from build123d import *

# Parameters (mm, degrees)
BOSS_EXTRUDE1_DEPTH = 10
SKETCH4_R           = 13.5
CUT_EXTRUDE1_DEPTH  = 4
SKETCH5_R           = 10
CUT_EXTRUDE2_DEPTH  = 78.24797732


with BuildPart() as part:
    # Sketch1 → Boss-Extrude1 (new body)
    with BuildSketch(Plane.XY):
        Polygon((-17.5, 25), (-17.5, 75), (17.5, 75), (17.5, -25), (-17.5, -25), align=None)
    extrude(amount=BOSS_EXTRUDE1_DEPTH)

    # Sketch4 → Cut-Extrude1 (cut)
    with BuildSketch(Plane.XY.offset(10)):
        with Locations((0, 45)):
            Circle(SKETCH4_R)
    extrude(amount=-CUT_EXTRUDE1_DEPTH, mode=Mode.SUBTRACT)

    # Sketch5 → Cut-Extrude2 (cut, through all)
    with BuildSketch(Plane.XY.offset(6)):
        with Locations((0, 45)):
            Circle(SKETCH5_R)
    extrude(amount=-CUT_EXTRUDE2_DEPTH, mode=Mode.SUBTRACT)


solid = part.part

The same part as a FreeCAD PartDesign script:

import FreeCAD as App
import Part
import Sketcher

doc = App.newDocument("Part")
body = doc.addObject("PartDesign::Body", "Body")

# Sketch on XY plane
sketch1 = body.newObject("Sketcher::SketchObject", "Sketch")
sketch1.AttachmentSupport = (doc.getObject("XY_Plane"), [""])
sketch1.MapMode = "FlatFace"
sketch1.addGeometry([
    Part.LineSegment(App.Vector(-18, 75, 0), App.Vector(-18, -25, 0)),
    Part.LineSegment(App.Vector(-18, -25, 0), App.Vector(18, -25, 0)),
    Part.LineSegment(App.Vector(18, -25, 0), App.Vector(18, 75, 0)),
    Part.LineSegment(App.Vector(18, 75, 0), App.Vector(-18, 75, 0)),
], False)
sketch1.addConstraint([
    Sketcher.Constraint("Coincident", 0, 2, 1, 1),
    Sketcher.Constraint("Coincident", 1, 2, 2, 1),
    Sketcher.Constraint("Coincident", 2, 2, 3, 1),
    Sketcher.Constraint("Coincident", 3, 2, 0, 1),
    Sketcher.Constraint("Vertical", 0),
    Sketcher.Constraint("Horizontal", 1),
    Sketcher.Constraint("Vertical", 2),
    Sketcher.Constraint("Horizontal", 3),
    Sketcher.Constraint("DistanceX", 1, 1, 1, 2, 35.0),
    Sketcher.Constraint("DistanceY", 0, 2, 0, 1, 100.0),
    Sketcher.Constraint("DistanceY", 0, 2, -1, 1, 25.0),
    Sketcher.Constraint("DistanceX", 0, 2, -1, 1, 17.5),
])
pad1 = body.newObject("PartDesign::Pad", "Pad")
pad1.Profile = sketch1
pad1.Length = 10

# Sketch on XY plane
sketch2 = body.newObject("Sketcher::SketchObject", "Sketch001")
sketch2.AttachmentSupport = (doc.getObject("XY_Plane"), [""])
sketch2.MapMode = "FlatFace"
sketch2.AttachmentOffset = App.Placement(App.Vector(0, 0, 10), App.Rotation())
sketch2.addGeometry(Part.Circle(App.Vector(0, 45, 0), App.Vector(0, 0, 1), 14), False)
sketch2.addConstraint([
    Sketcher.Constraint("PointOnObject", 0, 3, -2),
    Sketcher.Constraint("Diameter", 0, 27.0),
    Sketcher.Constraint("DistanceY", -1, 1, 0, 3, 45.0),
])
pocket1 = body.newObject("PartDesign::Pocket", "Pocket")
pocket1.Profile = sketch2
pocket1.Length = 4

# Sketch on XY plane
sketch3 = body.newObject("Sketcher::SketchObject", "Sketch002")
sketch3.AttachmentSupport = (doc.getObject("XY_Plane"), [""])
sketch3.MapMode = "FlatFace"
sketch3.AttachmentOffset = App.Placement(App.Vector(0, 0, 6), App.Rotation())
sketch3.addGeometry(Part.Circle(App.Vector(0, 45, 0), App.Vector(0, 0, 1), 10), False)
sketch3.addConstraint([
    Sketcher.Constraint("PointOnObject", 0, 3, -2),
    Sketcher.Constraint("Diameter", 0, 20.0),
    Sketcher.Constraint("DistanceY", -1, 1, 0, 3, 45.0),
])
pocket2 = body.newObject("PartDesign::Pocket", "Pocket001")
pocket2.Profile = sketch3
pocket2.Type = "ThroughAll"

doc.recompute()
